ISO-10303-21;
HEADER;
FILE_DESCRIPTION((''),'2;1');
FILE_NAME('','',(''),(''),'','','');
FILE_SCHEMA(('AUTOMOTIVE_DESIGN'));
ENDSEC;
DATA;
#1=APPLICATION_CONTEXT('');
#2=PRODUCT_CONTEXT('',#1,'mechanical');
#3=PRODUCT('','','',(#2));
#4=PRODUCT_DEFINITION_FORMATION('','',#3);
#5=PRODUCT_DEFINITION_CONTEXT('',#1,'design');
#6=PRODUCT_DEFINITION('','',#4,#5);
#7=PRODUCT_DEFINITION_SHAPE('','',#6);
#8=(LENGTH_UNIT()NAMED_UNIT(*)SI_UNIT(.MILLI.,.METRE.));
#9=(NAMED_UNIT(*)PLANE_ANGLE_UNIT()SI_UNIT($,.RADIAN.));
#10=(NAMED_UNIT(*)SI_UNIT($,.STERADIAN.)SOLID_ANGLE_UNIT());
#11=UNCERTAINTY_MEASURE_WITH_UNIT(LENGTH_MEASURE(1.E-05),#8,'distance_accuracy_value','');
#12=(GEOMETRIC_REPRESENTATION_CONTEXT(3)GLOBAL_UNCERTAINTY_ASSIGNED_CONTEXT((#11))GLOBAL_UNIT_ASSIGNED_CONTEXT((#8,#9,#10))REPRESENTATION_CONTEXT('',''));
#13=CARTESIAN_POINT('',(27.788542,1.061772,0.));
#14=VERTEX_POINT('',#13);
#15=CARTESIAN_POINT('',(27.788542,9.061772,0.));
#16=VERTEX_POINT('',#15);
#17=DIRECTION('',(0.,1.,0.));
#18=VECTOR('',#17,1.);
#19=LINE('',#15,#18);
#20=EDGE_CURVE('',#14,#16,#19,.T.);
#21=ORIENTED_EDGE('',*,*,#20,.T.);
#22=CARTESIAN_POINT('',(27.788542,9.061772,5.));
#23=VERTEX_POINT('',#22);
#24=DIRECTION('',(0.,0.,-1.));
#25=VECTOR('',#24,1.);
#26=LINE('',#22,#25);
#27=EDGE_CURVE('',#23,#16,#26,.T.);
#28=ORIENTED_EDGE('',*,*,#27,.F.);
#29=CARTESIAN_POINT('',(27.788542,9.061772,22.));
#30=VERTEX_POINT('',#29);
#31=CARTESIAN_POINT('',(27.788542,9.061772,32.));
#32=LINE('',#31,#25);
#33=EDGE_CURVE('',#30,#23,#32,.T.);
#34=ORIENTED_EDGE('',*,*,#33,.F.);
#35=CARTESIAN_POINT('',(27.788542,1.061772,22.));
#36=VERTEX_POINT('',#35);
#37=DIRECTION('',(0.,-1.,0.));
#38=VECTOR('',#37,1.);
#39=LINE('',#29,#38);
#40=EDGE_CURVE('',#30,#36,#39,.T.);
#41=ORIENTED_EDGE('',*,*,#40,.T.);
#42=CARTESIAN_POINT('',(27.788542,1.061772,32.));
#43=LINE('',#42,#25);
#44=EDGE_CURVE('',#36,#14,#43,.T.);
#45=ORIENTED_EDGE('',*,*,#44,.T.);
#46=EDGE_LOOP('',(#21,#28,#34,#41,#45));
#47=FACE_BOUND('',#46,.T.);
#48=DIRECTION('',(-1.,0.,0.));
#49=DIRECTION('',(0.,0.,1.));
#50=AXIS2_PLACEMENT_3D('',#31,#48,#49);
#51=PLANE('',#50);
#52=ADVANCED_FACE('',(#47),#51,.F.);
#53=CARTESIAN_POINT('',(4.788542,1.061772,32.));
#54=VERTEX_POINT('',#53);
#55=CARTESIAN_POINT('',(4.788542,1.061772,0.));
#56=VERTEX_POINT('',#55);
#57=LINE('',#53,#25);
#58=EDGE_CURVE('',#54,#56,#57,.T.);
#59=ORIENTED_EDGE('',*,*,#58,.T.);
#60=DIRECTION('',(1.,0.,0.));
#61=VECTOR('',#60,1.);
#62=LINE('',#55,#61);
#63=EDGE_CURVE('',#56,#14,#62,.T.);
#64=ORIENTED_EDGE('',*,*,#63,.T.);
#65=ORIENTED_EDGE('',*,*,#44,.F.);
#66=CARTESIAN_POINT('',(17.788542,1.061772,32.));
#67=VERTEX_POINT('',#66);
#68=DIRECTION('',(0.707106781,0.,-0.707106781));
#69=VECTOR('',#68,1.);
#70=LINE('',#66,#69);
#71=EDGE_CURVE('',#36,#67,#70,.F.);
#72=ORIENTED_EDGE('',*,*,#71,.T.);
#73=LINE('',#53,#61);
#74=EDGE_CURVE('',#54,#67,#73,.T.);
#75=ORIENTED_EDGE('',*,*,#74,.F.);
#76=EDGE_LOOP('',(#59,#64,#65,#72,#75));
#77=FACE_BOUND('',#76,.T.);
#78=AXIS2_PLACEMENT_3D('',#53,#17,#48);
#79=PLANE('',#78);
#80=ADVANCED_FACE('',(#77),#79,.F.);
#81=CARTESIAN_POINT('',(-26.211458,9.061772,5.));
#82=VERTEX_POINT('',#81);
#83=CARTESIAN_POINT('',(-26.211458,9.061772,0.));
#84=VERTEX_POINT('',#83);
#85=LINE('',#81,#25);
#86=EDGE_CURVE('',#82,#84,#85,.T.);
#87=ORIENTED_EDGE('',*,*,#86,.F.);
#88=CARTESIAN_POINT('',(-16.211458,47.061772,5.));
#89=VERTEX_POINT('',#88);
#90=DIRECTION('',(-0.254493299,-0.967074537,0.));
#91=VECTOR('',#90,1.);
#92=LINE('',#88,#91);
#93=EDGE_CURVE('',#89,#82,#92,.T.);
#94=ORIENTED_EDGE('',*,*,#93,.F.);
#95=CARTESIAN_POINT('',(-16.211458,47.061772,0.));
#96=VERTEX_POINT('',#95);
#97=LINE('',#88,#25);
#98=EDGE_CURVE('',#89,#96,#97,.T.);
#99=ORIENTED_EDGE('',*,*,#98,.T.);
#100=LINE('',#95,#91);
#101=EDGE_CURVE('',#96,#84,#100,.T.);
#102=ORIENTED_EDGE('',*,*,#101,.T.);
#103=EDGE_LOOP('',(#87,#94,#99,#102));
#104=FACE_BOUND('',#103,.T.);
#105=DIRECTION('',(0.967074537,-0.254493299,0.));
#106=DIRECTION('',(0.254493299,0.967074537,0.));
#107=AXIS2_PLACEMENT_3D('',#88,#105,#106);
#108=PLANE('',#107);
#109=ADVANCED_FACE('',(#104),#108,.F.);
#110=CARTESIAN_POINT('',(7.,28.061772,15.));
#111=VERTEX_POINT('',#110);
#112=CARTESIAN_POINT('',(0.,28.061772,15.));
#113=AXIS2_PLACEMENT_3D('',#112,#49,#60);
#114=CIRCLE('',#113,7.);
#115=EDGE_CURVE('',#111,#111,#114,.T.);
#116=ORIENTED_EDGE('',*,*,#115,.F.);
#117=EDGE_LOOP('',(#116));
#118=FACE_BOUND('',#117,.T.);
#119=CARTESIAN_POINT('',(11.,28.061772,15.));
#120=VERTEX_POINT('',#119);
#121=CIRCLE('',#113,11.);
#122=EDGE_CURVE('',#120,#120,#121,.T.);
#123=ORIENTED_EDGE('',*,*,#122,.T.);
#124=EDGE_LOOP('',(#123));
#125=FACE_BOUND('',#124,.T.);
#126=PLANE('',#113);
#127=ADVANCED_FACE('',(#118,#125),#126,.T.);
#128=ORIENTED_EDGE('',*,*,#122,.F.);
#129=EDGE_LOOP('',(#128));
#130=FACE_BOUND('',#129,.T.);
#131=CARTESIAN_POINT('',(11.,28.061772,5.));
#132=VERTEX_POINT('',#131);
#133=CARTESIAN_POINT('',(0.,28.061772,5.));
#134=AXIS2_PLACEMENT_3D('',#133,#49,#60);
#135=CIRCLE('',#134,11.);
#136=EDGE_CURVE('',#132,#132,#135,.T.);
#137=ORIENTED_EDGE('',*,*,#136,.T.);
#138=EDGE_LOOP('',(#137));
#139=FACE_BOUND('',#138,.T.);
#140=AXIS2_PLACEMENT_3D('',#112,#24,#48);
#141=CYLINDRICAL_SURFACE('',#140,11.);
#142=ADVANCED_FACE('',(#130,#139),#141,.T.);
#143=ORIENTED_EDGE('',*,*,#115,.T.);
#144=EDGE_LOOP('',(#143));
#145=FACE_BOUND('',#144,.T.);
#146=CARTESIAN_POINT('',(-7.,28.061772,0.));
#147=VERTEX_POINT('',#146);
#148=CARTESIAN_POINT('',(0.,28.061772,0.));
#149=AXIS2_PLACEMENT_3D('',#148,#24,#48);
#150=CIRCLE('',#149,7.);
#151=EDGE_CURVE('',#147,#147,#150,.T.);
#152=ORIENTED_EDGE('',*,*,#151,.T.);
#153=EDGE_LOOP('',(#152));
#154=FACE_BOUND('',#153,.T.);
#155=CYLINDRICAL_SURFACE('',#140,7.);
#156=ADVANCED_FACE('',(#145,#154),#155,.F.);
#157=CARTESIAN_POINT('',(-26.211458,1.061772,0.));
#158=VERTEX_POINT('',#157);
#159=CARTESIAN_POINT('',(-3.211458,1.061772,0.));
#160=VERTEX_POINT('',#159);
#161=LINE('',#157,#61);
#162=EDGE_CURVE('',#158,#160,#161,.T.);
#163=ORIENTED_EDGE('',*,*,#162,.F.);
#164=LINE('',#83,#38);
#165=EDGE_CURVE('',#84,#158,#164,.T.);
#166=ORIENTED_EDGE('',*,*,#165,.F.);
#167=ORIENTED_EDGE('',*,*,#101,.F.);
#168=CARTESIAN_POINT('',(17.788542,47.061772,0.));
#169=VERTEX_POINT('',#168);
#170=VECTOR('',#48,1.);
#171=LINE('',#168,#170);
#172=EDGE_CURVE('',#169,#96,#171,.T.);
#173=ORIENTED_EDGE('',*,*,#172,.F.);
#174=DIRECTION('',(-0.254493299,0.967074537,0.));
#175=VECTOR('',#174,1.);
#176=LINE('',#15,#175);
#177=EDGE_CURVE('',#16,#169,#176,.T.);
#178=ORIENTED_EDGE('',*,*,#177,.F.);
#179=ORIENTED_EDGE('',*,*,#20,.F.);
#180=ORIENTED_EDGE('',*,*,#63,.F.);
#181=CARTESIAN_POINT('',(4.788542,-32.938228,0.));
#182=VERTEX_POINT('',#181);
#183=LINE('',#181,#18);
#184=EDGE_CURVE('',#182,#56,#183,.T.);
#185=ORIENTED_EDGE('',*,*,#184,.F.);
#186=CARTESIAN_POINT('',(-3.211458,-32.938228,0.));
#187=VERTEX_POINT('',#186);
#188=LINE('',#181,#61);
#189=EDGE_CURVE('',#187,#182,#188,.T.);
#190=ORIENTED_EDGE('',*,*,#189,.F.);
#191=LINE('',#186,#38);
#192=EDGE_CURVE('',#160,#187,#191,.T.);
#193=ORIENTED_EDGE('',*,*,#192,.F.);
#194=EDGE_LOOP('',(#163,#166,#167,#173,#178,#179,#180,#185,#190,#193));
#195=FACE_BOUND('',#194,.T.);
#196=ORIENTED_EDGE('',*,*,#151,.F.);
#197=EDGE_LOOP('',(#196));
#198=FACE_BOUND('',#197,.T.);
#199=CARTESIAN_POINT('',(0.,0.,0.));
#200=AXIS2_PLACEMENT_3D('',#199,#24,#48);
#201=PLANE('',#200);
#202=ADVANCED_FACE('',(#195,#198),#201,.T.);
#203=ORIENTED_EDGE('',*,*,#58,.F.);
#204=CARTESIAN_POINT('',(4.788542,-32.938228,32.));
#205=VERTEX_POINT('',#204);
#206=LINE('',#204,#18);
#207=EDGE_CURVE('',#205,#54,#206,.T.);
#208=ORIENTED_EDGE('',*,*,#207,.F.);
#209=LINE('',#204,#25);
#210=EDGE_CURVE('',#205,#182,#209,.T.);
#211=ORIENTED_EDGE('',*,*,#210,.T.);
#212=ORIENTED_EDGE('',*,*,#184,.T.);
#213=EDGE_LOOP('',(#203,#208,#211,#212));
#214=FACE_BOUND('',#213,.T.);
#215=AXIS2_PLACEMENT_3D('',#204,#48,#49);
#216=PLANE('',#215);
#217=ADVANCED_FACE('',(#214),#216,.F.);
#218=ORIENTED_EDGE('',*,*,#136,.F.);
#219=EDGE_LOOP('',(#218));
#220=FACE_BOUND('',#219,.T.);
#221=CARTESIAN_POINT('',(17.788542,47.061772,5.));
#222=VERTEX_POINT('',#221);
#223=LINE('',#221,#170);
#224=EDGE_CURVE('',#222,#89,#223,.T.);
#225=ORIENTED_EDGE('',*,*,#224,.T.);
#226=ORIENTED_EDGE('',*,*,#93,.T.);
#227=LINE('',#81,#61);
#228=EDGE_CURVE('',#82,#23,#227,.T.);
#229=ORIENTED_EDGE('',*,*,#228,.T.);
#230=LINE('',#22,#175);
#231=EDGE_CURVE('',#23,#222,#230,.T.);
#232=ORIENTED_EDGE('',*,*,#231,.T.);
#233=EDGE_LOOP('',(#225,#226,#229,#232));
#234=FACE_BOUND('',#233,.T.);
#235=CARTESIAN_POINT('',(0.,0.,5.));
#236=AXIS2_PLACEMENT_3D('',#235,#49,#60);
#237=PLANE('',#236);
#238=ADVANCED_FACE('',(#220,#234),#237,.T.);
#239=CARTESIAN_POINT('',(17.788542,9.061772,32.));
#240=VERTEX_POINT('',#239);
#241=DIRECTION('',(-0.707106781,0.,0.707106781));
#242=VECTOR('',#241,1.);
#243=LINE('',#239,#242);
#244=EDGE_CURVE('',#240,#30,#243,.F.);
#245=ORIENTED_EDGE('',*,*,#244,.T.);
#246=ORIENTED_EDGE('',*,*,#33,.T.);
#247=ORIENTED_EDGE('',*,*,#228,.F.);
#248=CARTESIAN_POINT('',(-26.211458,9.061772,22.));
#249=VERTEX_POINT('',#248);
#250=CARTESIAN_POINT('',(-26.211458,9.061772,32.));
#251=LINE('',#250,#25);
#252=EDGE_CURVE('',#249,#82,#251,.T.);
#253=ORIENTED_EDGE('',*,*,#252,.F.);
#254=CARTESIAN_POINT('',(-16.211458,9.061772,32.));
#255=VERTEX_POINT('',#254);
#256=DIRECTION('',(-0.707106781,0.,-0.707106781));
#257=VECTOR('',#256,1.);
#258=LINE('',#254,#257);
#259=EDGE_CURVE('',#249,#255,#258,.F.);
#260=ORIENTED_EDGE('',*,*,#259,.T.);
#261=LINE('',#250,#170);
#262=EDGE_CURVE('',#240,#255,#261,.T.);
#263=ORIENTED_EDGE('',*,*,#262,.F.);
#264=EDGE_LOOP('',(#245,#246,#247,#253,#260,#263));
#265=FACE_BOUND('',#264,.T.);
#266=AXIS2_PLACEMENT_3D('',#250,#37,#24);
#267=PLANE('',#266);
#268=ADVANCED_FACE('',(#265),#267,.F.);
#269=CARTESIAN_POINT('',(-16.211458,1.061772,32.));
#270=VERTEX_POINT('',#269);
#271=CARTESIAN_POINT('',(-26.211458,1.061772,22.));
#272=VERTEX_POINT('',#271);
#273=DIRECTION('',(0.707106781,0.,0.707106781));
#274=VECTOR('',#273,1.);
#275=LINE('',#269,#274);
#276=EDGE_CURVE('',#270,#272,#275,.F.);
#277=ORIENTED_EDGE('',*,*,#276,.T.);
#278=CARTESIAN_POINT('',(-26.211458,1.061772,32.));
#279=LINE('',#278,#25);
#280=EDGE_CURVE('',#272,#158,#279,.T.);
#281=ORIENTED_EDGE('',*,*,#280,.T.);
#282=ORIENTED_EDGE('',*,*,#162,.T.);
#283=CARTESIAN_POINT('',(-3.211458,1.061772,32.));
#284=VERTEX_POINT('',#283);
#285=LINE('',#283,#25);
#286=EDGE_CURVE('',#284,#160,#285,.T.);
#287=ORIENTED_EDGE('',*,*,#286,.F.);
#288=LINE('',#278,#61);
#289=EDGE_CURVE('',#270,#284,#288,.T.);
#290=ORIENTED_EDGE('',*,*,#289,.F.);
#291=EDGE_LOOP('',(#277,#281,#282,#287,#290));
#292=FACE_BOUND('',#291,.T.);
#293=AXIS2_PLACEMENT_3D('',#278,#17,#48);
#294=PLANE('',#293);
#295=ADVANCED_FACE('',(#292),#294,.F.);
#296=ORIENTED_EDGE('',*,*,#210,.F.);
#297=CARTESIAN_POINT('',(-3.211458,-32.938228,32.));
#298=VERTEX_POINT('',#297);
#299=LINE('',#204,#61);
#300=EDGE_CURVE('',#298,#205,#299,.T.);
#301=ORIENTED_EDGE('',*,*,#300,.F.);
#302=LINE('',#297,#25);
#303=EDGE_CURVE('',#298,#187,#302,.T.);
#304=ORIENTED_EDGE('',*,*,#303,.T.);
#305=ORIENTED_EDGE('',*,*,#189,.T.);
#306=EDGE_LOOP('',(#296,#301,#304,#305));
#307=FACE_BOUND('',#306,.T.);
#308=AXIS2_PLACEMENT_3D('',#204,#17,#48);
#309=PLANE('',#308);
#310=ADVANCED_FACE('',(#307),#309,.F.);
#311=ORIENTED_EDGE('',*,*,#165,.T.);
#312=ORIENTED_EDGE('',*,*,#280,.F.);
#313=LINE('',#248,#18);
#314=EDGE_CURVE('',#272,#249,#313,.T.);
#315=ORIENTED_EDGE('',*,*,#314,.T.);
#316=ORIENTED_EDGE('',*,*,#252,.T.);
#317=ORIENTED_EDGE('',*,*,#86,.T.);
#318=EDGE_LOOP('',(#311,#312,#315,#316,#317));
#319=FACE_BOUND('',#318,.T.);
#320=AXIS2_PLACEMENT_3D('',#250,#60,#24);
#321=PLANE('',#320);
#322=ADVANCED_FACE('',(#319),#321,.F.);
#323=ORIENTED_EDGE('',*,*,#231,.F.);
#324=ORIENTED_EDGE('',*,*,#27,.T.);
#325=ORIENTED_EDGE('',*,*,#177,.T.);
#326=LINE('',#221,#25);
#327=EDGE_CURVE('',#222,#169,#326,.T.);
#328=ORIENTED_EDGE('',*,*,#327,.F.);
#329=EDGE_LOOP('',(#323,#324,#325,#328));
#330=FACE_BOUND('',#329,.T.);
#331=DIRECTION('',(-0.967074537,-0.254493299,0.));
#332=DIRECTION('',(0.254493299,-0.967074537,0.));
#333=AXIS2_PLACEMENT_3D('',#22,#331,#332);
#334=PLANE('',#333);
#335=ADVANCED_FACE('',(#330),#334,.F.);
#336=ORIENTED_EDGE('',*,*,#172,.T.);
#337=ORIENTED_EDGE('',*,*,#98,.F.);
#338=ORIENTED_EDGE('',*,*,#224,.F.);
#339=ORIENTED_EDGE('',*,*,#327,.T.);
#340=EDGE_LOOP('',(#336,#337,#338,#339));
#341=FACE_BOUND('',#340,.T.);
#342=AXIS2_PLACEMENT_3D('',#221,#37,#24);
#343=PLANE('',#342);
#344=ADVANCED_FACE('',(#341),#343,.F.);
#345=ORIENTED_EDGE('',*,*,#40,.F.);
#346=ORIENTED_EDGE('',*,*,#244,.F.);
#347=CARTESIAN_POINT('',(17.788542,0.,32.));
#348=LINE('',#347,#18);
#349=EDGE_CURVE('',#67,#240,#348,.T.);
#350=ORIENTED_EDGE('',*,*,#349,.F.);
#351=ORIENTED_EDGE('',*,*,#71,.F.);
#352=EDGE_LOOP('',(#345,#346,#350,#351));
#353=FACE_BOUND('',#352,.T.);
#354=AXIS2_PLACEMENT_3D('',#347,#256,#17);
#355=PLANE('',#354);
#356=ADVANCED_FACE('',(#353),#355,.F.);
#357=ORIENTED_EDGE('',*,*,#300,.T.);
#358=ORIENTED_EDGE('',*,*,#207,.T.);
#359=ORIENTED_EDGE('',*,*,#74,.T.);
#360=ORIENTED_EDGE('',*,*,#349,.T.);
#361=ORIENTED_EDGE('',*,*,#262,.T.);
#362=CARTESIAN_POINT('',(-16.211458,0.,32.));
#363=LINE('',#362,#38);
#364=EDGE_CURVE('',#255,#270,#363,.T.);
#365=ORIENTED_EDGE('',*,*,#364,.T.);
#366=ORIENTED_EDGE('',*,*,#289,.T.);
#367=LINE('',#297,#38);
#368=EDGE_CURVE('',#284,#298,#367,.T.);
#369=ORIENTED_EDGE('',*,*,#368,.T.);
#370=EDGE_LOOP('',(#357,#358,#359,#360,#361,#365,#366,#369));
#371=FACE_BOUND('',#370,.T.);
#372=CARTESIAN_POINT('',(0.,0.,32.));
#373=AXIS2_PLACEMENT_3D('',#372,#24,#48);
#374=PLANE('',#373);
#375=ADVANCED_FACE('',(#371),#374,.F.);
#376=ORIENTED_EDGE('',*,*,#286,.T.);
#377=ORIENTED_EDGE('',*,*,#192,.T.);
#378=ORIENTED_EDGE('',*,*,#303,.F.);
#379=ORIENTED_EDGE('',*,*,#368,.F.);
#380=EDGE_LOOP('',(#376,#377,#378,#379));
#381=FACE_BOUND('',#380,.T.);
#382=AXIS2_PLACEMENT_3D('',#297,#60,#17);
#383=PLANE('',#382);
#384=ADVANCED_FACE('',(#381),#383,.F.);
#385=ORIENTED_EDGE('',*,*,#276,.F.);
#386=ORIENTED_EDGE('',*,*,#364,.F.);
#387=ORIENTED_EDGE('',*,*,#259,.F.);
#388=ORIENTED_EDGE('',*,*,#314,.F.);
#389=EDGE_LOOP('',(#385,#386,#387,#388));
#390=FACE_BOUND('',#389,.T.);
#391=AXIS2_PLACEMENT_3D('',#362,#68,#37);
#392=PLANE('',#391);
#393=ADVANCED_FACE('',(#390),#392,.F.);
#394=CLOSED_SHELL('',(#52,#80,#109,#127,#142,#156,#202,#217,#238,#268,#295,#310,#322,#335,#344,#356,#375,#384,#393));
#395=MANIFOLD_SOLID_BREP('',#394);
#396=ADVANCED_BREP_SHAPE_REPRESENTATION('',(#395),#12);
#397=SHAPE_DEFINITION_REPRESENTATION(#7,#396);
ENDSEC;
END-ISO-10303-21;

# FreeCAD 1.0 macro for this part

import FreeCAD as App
import Part
import Sketcher
from FreeCAD import Vector


def edges_at(feature, points):
    """Names of the edges that pass closest to the given points."""
    edges = feature.Shape.Edges
    near = lambda p: min(range(len(edges)), key=lambda i: edges[i].distToShape(Part.Vertex(*p))[0])
    return sorted({f"Edge{near(p) + 1}" for p in points})

doc = App.newDocument("Part")
body = doc.addObject("PartDesign::Body", "Body")

# Sketch on XY plane
sketch1 = body.newObject("Sketcher::SketchObject", "Sketch")
sketch1.AttachmentSupport = (doc.getObject("XY_Plane"), [""])
sketch1.MapMode = "FlatFace"
sketch1.addGeometry(Part.LineSegment(Vector(-3, -33, 0), Vector(5, -33, 0)), False)
sketch1.addGeometry(Part.LineSegment(Vector(5, -33, 0), Vector(5, 1, 0)), False)
sketch1.addGeometry(Part.LineSegment(Vector(5, 1, 0), Vector(28, 1, 0)), False)
sketch1.addGeometry(Part.LineSegment(Vector(28, 1, 0), Vector(28, 9, 0)), False)
sketch1.addGeometry(Part.LineSegment(Vector(28, 9, 0), Vector(-26, 9, 0)), False)
sketch1.addGeometry(Part.LineSegment(Vector(-26, 9, 0), Vector(-26, 1, 0)), False)
sketch1.addGeometry(Part.LineSegment(Vector(-26, 1, 0), Vector(-3, 1, 0)), False)
sketch1.addGeometry(Part.LineSegment(Vector(-3, 1, 0), Vector(-3, -33, 0)), False)
sketch1.addConstraint(Sketcher.Constraint("Coincident", 0, 2, 1, 1))
sketch1.addConstraint(Sketcher.Constraint("Coincident", 1, 2, 2, 1))
sketch1.addConstraint(Sketcher.Constraint("Coincident", 2, 2, 3, 1))
sketch1.addConstraint(Sketcher.Constraint("Coincident", 3, 2, 4, 1))
sketch1.addConstraint(Sketcher.Constraint("Coincident", 4, 2, 5, 1))
sketch1.addConstraint(Sketcher.Constraint("Coincident", 5, 2, 6, 1))
sketch1.addConstraint(Sketcher.Constraint("Coincident", 6, 2, 7, 1))
sketch1.addConstraint(Sketcher.Constraint("Coincident", 7, 2, 0, 1))
sketch1.addConstraint(Sketcher.Constraint("Horizontal", 0))
sketch1.addConstraint(Sketcher.Constraint("Vertical", 1))
sketch1.addConstraint(Sketcher.Constraint("Horizontal", 2))
sketch1.addConstraint(Sketcher.Constraint("Vertical", 3))
sketch1.addConstraint(Sketcher.Constraint("Horizontal", 4))
sketch1.addConstraint(Sketcher.Constraint("Vertical", 5))
sketch1.addConstraint(Sketcher.Constraint("Horizontal", 6))
sketch1.addConstraint(Sketcher.Constraint("Vertical", 7))
sketch1.addConstraint(Sketcher.Constraint("Horizontal", 2, 2, 5, 2))
sketch1.addConstraint(Sketcher.Constraint("Equal", 2, 6))
sketch1.addConstraint(Sketcher.Constraint("Equal", 0, 3))
sketch1.addConstraint(Sketcher.Constraint("DistanceX", 0, 1, 0, 2, 8.0))
sketch1.addConstraint(Sketcher.Constraint("DistanceX", 2, 1, 2, 2, 23.0))
sketch1.addConstraint(Sketcher.Constraint("DistanceY", 1, 1, 1, 2, 34.0))
sketch1.addConstraint(Sketcher.Constraint("DistanceY", 0, 2, -1, 1, 32.938228))
sketch1.addConstraint(Sketcher.Constraint("DistanceX", -1, 1, 0, 2, 4.788542))
pad1 = body.newObject("PartDesign::Pad", "Pad")
pad1.Profile = sketch1
pad1.Length = 32
doc.recompute()

chamfer = body.newObject("PartDesign::Chamfer", "Chamfer")
chamfer.Base = (pad1, edges_at(pad1, [(27.789, 5.062, 32)]))
chamfer.Size = 10
doc.recompute()

chamfer2 = body.newObject("PartDesign::Chamfer", "Chamfer001")
chamfer2.Base = (chamfer, edges_at(chamfer, [(-26.211, 5.062, 32)]))
chamfer2.Size = 10

# Sketch on XY plane
sketch2 = body.newObject("Sketcher::SketchObject", "Sketch001")
sketch2.AttachmentSupport = (doc.getObject("XY_Plane"), [""])
sketch2.MapMode = "FlatFace"
sketch2.addGeometry(Part.LineSegment(Vector(28, 9, 0), Vector(18, 47, 0)), False)
sketch2.addGeometry(Part.LineSegment(Vector(18, 47, 0), Vector(-16, 47, 0)), False)
sketch2.addGeometry(Part.LineSegment(Vector(-16, 47, 0), Vector(-26, 9, 0)), False)
sketch2.addGeometry(Part.LineSegment(Vector(-26, 9, 0), Vector(28, 9, 0)), False)
sketch2.addConstraint(Sketcher.Constraint("Coincident", 0, 2, 1, 1))
sketch2.addConstraint(Sketcher.Constraint("Coincident", 1, 2, 2, 1))
sketch2.addConstraint(Sketcher.Constraint("Coincident", 2, 2, 3, 1))
sketch2.addConstraint(Sketcher.Constraint("Coincident", 3, 2, 0, 1))
sketch2.addConstraint(Sketcher.Constraint("Horizontal", 1))
sketch2.addConstraint(Sketcher.Constraint("Horizontal", 3))
sketch2.addConstraint(Sketcher.Constraint("Equal", 0, 2))
sketch2.addConstraint(Sketcher.Constraint("DistanceX", 1, 2, 1, 1, 34.0))
sketch2.addConstraint(Sketcher.Constraint("DistanceX", 3, 1, 3, 2, 54.0))
sketch2.addConstraint(Sketcher.Constraint("DistanceY", 2, 2, 1, 2, 38.0))
sketch2.addConstraint(Sketcher.Constraint("DistanceY", -1, 1, 0, 2, 47.061772))
sketch2.addConstraint(Sketcher.Constraint("DistanceX", -1, 1, 0, 2, 17.788542))
pad2 = body.newObject("PartDesign::Pad", "Pad001")
pad2.Profile = sketch2
pad2.Length = 5

# Sketch on XY plane
sketch3 = body.newObject("Sketcher::SketchObject", "Sketch002")
sketch3.AttachmentSupport = (doc.getObject("XY_Plane"), [""])
sketch3.MapMode = "FlatFace"
sketch3.AttachmentOffset = App.Placement(Vector(0, 0, 5), App.Rotation())
sketch3.addGeometry(Part.Circle(Vector(0, 28, 0), Vector(0, 0, 1), 11), False)
sketch3.addGeometry(Part.Circle(Vector(0, 28, 0), Vector(0, 0, 1), 7), False)
sketch3.addConstraint(Sketcher.Constraint("Coincident", 1, 3, 0, 3))
sketch3.addConstraint(Sketcher.Constraint("PointOnObject", 0, 3, -2))
sketch3.addConstraint(Sketcher.Constraint("Diameter", 0, 22.0))
sketch3.addConstraint(Sketcher.Constraint("Diameter", 1, 14.0))
sketch3.addConstraint(Sketcher.Constraint("DistanceY", -1, 1, 0, 3, 28.061772))
pad3 = body.newObject("PartDesign::Pad", "Pad002")
pad3.Profile = sketch3
pad3.Length = 10

# Sketch on XY plane
sketch4 = body.newObject("Sketcher::SketchObject", "Sketch003")
sketch4.AttachmentSupport = (doc.getObject("XY_Plane"), [""])
sketch4.MapMode = "FlatFace"
sketch4.AttachmentOffset = App.Placement(Vector(0, 0, -5), App.Rotation())
sketch4.addGeometry(Part.Circle(Vector(0, 28, 0), Vector(0, 0, 1), 7), False)
sketch4.addConstraint(Sketcher.Constraint("PointOnObject", 0, 3, -2))
sketch4.addConstraint(Sketcher.Constraint("Diameter", 0, 14.0))
sketch4.addConstraint(Sketcher.Constraint("DistanceY", -1, 1, 0, 3, 28.061772))
pocket1 = body.newObject("PartDesign::Pocket", "Pocket")
pocket1.Profile = sketch4
pocket1.Length = 10
pocket1.Reversed = True

doc.recompute()
